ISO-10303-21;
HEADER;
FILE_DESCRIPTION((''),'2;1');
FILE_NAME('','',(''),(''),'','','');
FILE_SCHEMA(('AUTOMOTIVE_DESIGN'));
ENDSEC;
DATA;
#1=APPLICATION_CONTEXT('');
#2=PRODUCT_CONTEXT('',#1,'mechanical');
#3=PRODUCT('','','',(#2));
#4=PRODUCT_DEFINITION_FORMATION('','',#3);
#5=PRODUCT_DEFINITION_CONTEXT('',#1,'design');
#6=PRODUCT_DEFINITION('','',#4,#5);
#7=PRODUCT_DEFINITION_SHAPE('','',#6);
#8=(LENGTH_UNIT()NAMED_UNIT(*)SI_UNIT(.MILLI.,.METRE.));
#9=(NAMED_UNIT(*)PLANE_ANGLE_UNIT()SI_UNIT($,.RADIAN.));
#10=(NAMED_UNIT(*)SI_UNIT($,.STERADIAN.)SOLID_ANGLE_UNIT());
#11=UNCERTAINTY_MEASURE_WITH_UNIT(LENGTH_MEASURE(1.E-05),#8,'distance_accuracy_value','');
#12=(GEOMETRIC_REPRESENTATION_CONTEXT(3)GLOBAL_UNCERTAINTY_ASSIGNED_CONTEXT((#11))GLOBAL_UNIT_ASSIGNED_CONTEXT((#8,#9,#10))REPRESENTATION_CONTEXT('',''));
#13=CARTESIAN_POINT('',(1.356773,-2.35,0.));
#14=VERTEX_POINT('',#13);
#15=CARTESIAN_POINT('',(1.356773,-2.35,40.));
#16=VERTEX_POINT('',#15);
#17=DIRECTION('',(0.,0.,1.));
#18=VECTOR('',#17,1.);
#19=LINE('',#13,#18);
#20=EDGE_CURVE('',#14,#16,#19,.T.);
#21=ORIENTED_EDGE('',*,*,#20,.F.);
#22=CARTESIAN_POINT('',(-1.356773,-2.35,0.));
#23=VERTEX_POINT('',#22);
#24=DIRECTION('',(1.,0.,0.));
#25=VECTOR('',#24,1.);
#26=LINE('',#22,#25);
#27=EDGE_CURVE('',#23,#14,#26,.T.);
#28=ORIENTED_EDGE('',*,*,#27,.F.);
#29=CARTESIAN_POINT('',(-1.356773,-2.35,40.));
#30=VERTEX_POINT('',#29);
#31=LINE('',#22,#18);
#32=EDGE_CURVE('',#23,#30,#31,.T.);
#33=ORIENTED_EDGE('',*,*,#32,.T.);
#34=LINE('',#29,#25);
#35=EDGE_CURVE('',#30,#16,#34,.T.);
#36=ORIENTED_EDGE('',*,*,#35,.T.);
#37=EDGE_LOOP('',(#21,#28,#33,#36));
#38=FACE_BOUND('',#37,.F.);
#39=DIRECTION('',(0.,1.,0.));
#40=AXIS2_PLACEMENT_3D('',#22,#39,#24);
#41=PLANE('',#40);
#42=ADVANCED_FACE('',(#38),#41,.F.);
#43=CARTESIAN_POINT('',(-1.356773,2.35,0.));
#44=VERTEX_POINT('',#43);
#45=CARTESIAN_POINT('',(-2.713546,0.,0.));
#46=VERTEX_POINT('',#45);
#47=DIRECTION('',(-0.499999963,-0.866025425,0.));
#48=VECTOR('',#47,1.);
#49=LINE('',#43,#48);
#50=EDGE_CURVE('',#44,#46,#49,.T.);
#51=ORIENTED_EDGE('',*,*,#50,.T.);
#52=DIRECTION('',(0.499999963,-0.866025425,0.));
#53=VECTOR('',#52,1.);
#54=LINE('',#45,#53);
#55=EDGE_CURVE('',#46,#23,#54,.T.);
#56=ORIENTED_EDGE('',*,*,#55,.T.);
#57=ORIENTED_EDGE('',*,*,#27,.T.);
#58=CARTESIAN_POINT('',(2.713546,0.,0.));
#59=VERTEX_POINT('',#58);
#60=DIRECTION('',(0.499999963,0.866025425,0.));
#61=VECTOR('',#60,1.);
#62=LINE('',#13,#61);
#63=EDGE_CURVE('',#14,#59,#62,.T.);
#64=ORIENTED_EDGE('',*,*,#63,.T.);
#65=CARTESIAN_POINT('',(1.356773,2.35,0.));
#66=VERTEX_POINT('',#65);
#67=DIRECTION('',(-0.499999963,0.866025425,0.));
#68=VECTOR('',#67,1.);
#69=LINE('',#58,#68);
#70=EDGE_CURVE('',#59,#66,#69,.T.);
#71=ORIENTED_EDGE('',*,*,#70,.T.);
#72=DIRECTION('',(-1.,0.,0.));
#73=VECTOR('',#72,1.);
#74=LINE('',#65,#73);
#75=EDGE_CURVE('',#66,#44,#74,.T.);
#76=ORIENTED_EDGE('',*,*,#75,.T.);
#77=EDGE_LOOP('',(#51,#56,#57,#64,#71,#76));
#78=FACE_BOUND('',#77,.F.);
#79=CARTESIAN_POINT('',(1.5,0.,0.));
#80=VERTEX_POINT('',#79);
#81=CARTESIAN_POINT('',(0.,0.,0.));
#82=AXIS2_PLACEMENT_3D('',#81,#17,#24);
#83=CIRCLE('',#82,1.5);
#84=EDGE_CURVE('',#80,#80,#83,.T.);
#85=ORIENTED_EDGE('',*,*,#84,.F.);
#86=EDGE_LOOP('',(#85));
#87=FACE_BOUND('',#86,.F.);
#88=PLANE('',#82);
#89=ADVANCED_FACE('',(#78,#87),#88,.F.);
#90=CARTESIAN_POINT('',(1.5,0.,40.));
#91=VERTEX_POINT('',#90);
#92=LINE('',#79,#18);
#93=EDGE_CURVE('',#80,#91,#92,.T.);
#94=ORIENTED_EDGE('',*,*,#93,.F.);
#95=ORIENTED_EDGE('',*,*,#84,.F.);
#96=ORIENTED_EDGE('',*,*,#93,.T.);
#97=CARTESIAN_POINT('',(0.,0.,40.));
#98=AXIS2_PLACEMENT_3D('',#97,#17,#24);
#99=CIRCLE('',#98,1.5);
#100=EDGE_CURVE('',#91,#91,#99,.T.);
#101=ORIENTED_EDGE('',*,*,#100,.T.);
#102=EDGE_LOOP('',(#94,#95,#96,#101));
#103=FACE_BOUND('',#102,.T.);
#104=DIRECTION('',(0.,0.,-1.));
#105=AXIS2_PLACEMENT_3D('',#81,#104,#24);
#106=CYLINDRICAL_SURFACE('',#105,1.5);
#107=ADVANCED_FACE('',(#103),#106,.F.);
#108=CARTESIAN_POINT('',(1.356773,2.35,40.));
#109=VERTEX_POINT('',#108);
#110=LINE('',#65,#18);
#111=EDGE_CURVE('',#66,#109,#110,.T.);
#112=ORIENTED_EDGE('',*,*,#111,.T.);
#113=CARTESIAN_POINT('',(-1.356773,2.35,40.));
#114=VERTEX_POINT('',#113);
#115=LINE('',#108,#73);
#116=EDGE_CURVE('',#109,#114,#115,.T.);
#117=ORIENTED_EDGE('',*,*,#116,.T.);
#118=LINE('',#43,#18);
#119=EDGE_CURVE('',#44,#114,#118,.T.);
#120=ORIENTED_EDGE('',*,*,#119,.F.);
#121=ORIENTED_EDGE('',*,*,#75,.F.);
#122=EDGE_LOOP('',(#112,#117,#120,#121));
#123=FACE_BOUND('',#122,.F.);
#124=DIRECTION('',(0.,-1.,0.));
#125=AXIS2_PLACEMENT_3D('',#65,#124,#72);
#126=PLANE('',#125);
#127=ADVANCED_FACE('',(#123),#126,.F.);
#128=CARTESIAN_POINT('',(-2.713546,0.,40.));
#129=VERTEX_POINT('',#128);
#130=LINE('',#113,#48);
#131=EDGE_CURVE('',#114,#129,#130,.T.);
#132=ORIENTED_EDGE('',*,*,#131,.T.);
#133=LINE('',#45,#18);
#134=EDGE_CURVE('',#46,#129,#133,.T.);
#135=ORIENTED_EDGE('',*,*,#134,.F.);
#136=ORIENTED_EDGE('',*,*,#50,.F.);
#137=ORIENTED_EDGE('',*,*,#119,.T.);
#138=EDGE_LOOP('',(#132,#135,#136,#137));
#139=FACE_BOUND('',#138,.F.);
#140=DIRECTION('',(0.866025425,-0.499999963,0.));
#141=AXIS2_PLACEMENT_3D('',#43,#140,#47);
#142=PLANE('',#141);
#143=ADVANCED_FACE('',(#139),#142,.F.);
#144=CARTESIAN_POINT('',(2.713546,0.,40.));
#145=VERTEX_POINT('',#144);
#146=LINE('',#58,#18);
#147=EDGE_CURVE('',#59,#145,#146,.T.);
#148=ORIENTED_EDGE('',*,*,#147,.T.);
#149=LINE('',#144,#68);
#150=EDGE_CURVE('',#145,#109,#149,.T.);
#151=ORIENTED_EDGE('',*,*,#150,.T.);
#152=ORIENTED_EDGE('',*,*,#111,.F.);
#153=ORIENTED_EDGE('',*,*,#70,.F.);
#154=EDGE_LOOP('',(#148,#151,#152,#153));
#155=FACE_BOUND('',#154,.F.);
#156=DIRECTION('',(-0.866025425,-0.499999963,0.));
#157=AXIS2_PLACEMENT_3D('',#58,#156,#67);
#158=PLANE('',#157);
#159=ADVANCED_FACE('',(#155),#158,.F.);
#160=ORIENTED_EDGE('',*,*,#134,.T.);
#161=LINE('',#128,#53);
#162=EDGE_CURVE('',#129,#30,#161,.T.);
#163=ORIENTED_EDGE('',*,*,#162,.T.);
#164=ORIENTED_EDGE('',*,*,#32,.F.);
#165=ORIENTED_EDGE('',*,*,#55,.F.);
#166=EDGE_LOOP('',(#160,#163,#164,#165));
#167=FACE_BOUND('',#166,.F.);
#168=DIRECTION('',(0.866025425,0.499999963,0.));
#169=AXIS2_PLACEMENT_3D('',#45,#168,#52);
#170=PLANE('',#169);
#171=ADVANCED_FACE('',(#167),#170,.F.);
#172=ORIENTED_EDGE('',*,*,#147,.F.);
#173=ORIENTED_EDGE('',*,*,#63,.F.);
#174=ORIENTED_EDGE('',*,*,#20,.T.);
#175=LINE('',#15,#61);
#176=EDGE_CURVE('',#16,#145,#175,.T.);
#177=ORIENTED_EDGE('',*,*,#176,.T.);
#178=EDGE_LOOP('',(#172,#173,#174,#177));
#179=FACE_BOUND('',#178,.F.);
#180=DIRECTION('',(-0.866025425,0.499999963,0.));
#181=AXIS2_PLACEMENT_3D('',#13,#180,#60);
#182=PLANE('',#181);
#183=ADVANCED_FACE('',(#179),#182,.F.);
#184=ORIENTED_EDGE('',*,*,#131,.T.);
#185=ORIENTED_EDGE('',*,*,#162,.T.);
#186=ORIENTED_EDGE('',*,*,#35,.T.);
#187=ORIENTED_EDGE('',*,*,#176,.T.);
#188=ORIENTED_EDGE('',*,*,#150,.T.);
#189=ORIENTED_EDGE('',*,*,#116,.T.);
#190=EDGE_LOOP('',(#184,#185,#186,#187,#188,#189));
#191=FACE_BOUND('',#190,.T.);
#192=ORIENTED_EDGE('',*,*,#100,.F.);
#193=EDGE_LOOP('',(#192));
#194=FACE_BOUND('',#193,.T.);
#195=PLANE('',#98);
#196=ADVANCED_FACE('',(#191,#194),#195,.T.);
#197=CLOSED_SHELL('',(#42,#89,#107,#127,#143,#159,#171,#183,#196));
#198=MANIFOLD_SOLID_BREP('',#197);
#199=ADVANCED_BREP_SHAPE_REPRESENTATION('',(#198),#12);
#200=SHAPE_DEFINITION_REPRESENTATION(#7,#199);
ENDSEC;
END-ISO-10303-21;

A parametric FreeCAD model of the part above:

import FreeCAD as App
import Part
import Sketcher
from FreeCAD import Vector
Q = App.Units.Quantity


def add_polygon(sketch, points):
    """Adds a closed chain of lines whose ends are joined by coincident constraints."""
    first, n = sketch.GeometryCount, len(points)
    for a, b in zip(points, points[1:] + points[:1]):
        sketch.addGeometry(Part.LineSegment(App.Vector(*a, 0), App.Vector(*b, 0)), False)
    for i in range(n):
        sketch.addConstraint(Sketcher.Constraint("Coincident", first + i, 2, first + (i + 1) % n, 1))

doc = App.newDocument("Part")
body = doc.addObject("PartDesign::Body", "Body")

sketch1 = body.newObject("Sketcher::SketchObject", "Sketch")
sketch1.AttachmentSupport = (doc.getObject("XY_Plane"), [""])
sketch1.MapMode = "FlatFace"
add_polygon(sketch1, [(-1.356773, -2.35), (1.356773, -2.35), (2.713546, 0), (1.356773, 2.35), (-1.356773, 2.35), (-2.713546, 0)])
sketch1.addGeometry(Part.Circle(Vector(0, 0, 0), Vector(0, 0, 1), 1.5), False)
sketch1.addConstraint([
    Sketcher.Constraint("Horizontal", 0),
    Sketcher.Constraint("Horizontal", 3),
    Sketcher.Constraint("Coincident", 6, 3, -1, 1),
    Sketcher.Constraint("Symmetric", 0, 2, 3, 2, -1, 1),
    Sketcher.Constraint("Symmetric", 1, 2, 4, 2, -1, 1),
    Sketcher.Constraint("PointOnObject", 1, 2, -1),
    Sketcher.Constraint("Parallel", 2, 5),
    Sketcher.Constraint("Vertical", 0, 2, 2, 2),
    Sketcher.Constraint("Diameter", 6, 3.0),
    Sketcher.Constraint("Angle", 1, Q("60.000002 deg")),
    Sketcher.Constraint("DistanceY", 0, 2, 2, 2, 4.7),
    Sketcher.Constraint("DistanceX", 0, 1, 0, 2, 2.713546),
])
pad1 = body.newObject("PartDesign::Pad", "Pad")
pad1.Profile = sketch1
pad1.Length = 40

doc.recompute()
